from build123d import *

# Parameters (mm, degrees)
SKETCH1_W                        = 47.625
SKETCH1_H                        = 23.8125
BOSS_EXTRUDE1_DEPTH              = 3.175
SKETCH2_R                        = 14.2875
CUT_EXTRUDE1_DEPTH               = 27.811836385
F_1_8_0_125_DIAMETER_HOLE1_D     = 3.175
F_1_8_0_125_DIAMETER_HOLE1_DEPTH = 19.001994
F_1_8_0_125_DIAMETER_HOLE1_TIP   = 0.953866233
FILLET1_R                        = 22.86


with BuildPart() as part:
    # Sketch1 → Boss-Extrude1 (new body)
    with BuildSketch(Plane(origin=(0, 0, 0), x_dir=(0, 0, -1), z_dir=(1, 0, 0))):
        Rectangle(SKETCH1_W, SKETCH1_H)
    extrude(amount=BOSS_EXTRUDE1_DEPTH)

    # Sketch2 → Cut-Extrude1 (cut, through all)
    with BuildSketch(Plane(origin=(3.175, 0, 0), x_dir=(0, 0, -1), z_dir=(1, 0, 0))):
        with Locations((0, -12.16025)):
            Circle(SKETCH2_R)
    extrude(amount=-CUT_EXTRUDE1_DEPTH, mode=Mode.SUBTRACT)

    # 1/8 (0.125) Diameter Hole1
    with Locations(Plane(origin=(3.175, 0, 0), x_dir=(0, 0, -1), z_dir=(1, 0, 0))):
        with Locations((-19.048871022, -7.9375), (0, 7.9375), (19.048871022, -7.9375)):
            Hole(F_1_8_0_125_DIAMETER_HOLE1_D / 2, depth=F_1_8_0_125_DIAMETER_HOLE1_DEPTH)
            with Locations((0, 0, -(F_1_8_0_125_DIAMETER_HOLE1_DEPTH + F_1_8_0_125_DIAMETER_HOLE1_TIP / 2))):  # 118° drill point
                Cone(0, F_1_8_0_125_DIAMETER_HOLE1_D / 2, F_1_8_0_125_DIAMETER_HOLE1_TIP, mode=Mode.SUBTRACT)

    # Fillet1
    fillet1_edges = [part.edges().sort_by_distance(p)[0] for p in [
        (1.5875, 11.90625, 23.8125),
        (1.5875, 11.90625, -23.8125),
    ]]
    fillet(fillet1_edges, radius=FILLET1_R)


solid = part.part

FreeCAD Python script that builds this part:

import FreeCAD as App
import Part
import Sketcher
Q = App.Units.Quantity


def edges_at(feature, points):
    """Names of the edges that pass closest to the given points."""
    edges = feature.Shape.Edges
    near = lambda p: min(range(len(edges)), key=lambda i: edges[i].distToShape(Part.Vertex(*p))[0])
    return sorted({f"Edge{near(p) + 1}" for p in points})

doc = App.newDocument("Part")
body = doc.addObject("PartDesign::Body", "Body")

# Sketch on YZ plane
sketch1 = body.newObject("Sketcher::SketchObject", "Sketch")
sketch1.AttachmentSupport = (doc.getObject("YZ_Plane"), [""])
sketch1.MapMode = "FlatFace"
sketch1.addGeometry(Part.LineSegment(App.Vector(11.90625, 23.8125, 0), App.Vector(-11.90625, 23.8125, 0)), False)
sketch1.addGeometry(Part.LineSegment(App.Vector(-11.90625, 23.8125, 0), App.Vector(-11.90625, -23.8125, 0)), False)
sketch1.addGeometry(Part.LineSegment(App.Vector(-11.90625, -23.8125, 0), App.Vector(11.90625, -23.8125, 0)), False)
sketch1.addGeometry(Part.LineSegment(App.Vector(11.90625, -23.8125, 0), App.Vector(11.90625, 23.8125, 0)), False)
sketch1.addConstraint(Sketcher.Constraint("Coincident", 0, 2, 1, 1))
sketch1.addConstraint(Sketcher.Constraint("Coincident", 1, 2, 2, 1))
sketch1.addConstraint(Sketcher.Constraint("Coincident", 2, 2, 3, 1))
sketch1.addConstraint(Sketcher.Constraint("Coincident", 3, 2, 0, 1))
sketch1.addConstraint(Sketcher.Constraint("Horizontal", 0))
sketch1.addConstraint(Sketcher.Constraint("Vertical", 1))
sketch1.addConstraint(Sketcher.Constraint("Horizontal", 2))
sketch1.addConstraint(Sketcher.Constraint("Vertical", 3))
sketch1.addConstraint(Sketcher.Constraint("Symmetric", 0, 2, 2, 2, -1, 1))
sketch1.addConstraint(Sketcher.Constraint("DistanceX", 0, 2, 0, 1, Q("0.9375 in")))
sketch1.addConstraint(Sketcher.Constraint("DistanceY", 1, 2, 1, 1, Q("1.875 in")))
pad1 = body.newObject("PartDesign::Pad", "Pad")
pad1.Profile = sketch1
pad1.Length = Q("0.125 in")

# Sketch on YZ plane
sketch2 = body.newObject("Sketcher::SketchObject", "Sketch001")
sketch2.AttachmentSupport = (doc.getObject("YZ_Plane"), [""])
sketch2.MapMode = "FlatFace"
sketch2.AttachmentOffset = App.Placement(App.Vector(0, 0, 0.125 * 25.4), App.Rotation())
sketch2.addGeometry(Part.Circle(App.Vector(-12.16025, 0, 0), App.Vector(0, 0, 1), 14.2875), False)
sketch2.addConstraint(Sketcher.Constraint("PointOnObject", 0, 3, -1))
sketch2.addConstraint(Sketcher.Constraint("Diameter", 0, Q("1.125 in")))
sketch2.addConstraint(Sketcher.Constraint("DistanceX", 0, 3, -1, 1, 12.16025))
pocket1 = body.newObject("PartDesign::Pocket", "Pocket")
pocket1.Profile = sketch2
pocket1.Type = "ThroughAll"

# Sketch on YZ plane
sketch3 = body.newObject("Sketcher::SketchObject", "Sketch002")
sketch3.AttachmentSupport = (doc.getObject("YZ_Plane"), [""])
sketch3.MapMode = "FlatFace"
sketch3.AttachmentOffset = App.Placement(App.Vector(0, 0, 0.125 * 25.4), App.Rotation())
sketch3.addGeometry(Part.Circle(App.Vector(-7.9375, 19.048871, 0), App.Vector(0, 0, 1), 1.5875), False)
sketch3.addGeometry(Part.Circle(App.Vector(7.9375, 0, 0), App.Vector(0, 0, 1), 1.5875), False)
sketch3.addGeometry(Part.Circle(App.Vector(-7.9375, -19.048871, 0), App.Vector(0, 0, 1), 1.5875), False)
sketch3.addConstraint(Sketcher.Constraint("Equal", 0, 1))
sketch3.addConstraint(Sketcher.Constraint("Equal", 1, 2))
sketch3.addConstraint(Sketcher.Constraint("Symmetric", 0, 3, 2, 3, -1))
sketch3.addConstraint(Sketcher.Constraint("PointOnObject", 1, 3, -1))
sketch3.addConstraint(Sketcher.Constraint("Diameter", 0, Q("0.125 in")))
sketch3.addConstraint(Sketcher.Constraint("DistanceX", 0, 3, -1, 1, Q("0.3125 in")))
sketch3.addConstraint(Sketcher.Constraint("DistanceX", -1, 1, 1, 3, Q("0.3125 in")))
sketch3.addConstraint(Sketcher.Constraint("DistanceY", -1, 1, 0, 3, 19.048871))
doc.recompute()
hole = body.newObject("PartDesign::Hole", "Hole")
hole.Profile = sketch3
hole.ThreadType = "None"
hole.Diameter = Q("0.125 in")
hole.DepthType = "Dimension"
hole.Depth = 19.001994
hole.DrillPoint = "Angled"
hole.DrillPointAngle = 118
doc.recompute()

fillet = body.newObject("PartDesign::Fillet", "Fillet")
fillet.Base = (hole, edges_at(hole, [(1.587, 11.906, 23.812), (1.587, 11.906, -23.812)]))
fillet.Radius = Q("0.9 in")

doc.recompute()
